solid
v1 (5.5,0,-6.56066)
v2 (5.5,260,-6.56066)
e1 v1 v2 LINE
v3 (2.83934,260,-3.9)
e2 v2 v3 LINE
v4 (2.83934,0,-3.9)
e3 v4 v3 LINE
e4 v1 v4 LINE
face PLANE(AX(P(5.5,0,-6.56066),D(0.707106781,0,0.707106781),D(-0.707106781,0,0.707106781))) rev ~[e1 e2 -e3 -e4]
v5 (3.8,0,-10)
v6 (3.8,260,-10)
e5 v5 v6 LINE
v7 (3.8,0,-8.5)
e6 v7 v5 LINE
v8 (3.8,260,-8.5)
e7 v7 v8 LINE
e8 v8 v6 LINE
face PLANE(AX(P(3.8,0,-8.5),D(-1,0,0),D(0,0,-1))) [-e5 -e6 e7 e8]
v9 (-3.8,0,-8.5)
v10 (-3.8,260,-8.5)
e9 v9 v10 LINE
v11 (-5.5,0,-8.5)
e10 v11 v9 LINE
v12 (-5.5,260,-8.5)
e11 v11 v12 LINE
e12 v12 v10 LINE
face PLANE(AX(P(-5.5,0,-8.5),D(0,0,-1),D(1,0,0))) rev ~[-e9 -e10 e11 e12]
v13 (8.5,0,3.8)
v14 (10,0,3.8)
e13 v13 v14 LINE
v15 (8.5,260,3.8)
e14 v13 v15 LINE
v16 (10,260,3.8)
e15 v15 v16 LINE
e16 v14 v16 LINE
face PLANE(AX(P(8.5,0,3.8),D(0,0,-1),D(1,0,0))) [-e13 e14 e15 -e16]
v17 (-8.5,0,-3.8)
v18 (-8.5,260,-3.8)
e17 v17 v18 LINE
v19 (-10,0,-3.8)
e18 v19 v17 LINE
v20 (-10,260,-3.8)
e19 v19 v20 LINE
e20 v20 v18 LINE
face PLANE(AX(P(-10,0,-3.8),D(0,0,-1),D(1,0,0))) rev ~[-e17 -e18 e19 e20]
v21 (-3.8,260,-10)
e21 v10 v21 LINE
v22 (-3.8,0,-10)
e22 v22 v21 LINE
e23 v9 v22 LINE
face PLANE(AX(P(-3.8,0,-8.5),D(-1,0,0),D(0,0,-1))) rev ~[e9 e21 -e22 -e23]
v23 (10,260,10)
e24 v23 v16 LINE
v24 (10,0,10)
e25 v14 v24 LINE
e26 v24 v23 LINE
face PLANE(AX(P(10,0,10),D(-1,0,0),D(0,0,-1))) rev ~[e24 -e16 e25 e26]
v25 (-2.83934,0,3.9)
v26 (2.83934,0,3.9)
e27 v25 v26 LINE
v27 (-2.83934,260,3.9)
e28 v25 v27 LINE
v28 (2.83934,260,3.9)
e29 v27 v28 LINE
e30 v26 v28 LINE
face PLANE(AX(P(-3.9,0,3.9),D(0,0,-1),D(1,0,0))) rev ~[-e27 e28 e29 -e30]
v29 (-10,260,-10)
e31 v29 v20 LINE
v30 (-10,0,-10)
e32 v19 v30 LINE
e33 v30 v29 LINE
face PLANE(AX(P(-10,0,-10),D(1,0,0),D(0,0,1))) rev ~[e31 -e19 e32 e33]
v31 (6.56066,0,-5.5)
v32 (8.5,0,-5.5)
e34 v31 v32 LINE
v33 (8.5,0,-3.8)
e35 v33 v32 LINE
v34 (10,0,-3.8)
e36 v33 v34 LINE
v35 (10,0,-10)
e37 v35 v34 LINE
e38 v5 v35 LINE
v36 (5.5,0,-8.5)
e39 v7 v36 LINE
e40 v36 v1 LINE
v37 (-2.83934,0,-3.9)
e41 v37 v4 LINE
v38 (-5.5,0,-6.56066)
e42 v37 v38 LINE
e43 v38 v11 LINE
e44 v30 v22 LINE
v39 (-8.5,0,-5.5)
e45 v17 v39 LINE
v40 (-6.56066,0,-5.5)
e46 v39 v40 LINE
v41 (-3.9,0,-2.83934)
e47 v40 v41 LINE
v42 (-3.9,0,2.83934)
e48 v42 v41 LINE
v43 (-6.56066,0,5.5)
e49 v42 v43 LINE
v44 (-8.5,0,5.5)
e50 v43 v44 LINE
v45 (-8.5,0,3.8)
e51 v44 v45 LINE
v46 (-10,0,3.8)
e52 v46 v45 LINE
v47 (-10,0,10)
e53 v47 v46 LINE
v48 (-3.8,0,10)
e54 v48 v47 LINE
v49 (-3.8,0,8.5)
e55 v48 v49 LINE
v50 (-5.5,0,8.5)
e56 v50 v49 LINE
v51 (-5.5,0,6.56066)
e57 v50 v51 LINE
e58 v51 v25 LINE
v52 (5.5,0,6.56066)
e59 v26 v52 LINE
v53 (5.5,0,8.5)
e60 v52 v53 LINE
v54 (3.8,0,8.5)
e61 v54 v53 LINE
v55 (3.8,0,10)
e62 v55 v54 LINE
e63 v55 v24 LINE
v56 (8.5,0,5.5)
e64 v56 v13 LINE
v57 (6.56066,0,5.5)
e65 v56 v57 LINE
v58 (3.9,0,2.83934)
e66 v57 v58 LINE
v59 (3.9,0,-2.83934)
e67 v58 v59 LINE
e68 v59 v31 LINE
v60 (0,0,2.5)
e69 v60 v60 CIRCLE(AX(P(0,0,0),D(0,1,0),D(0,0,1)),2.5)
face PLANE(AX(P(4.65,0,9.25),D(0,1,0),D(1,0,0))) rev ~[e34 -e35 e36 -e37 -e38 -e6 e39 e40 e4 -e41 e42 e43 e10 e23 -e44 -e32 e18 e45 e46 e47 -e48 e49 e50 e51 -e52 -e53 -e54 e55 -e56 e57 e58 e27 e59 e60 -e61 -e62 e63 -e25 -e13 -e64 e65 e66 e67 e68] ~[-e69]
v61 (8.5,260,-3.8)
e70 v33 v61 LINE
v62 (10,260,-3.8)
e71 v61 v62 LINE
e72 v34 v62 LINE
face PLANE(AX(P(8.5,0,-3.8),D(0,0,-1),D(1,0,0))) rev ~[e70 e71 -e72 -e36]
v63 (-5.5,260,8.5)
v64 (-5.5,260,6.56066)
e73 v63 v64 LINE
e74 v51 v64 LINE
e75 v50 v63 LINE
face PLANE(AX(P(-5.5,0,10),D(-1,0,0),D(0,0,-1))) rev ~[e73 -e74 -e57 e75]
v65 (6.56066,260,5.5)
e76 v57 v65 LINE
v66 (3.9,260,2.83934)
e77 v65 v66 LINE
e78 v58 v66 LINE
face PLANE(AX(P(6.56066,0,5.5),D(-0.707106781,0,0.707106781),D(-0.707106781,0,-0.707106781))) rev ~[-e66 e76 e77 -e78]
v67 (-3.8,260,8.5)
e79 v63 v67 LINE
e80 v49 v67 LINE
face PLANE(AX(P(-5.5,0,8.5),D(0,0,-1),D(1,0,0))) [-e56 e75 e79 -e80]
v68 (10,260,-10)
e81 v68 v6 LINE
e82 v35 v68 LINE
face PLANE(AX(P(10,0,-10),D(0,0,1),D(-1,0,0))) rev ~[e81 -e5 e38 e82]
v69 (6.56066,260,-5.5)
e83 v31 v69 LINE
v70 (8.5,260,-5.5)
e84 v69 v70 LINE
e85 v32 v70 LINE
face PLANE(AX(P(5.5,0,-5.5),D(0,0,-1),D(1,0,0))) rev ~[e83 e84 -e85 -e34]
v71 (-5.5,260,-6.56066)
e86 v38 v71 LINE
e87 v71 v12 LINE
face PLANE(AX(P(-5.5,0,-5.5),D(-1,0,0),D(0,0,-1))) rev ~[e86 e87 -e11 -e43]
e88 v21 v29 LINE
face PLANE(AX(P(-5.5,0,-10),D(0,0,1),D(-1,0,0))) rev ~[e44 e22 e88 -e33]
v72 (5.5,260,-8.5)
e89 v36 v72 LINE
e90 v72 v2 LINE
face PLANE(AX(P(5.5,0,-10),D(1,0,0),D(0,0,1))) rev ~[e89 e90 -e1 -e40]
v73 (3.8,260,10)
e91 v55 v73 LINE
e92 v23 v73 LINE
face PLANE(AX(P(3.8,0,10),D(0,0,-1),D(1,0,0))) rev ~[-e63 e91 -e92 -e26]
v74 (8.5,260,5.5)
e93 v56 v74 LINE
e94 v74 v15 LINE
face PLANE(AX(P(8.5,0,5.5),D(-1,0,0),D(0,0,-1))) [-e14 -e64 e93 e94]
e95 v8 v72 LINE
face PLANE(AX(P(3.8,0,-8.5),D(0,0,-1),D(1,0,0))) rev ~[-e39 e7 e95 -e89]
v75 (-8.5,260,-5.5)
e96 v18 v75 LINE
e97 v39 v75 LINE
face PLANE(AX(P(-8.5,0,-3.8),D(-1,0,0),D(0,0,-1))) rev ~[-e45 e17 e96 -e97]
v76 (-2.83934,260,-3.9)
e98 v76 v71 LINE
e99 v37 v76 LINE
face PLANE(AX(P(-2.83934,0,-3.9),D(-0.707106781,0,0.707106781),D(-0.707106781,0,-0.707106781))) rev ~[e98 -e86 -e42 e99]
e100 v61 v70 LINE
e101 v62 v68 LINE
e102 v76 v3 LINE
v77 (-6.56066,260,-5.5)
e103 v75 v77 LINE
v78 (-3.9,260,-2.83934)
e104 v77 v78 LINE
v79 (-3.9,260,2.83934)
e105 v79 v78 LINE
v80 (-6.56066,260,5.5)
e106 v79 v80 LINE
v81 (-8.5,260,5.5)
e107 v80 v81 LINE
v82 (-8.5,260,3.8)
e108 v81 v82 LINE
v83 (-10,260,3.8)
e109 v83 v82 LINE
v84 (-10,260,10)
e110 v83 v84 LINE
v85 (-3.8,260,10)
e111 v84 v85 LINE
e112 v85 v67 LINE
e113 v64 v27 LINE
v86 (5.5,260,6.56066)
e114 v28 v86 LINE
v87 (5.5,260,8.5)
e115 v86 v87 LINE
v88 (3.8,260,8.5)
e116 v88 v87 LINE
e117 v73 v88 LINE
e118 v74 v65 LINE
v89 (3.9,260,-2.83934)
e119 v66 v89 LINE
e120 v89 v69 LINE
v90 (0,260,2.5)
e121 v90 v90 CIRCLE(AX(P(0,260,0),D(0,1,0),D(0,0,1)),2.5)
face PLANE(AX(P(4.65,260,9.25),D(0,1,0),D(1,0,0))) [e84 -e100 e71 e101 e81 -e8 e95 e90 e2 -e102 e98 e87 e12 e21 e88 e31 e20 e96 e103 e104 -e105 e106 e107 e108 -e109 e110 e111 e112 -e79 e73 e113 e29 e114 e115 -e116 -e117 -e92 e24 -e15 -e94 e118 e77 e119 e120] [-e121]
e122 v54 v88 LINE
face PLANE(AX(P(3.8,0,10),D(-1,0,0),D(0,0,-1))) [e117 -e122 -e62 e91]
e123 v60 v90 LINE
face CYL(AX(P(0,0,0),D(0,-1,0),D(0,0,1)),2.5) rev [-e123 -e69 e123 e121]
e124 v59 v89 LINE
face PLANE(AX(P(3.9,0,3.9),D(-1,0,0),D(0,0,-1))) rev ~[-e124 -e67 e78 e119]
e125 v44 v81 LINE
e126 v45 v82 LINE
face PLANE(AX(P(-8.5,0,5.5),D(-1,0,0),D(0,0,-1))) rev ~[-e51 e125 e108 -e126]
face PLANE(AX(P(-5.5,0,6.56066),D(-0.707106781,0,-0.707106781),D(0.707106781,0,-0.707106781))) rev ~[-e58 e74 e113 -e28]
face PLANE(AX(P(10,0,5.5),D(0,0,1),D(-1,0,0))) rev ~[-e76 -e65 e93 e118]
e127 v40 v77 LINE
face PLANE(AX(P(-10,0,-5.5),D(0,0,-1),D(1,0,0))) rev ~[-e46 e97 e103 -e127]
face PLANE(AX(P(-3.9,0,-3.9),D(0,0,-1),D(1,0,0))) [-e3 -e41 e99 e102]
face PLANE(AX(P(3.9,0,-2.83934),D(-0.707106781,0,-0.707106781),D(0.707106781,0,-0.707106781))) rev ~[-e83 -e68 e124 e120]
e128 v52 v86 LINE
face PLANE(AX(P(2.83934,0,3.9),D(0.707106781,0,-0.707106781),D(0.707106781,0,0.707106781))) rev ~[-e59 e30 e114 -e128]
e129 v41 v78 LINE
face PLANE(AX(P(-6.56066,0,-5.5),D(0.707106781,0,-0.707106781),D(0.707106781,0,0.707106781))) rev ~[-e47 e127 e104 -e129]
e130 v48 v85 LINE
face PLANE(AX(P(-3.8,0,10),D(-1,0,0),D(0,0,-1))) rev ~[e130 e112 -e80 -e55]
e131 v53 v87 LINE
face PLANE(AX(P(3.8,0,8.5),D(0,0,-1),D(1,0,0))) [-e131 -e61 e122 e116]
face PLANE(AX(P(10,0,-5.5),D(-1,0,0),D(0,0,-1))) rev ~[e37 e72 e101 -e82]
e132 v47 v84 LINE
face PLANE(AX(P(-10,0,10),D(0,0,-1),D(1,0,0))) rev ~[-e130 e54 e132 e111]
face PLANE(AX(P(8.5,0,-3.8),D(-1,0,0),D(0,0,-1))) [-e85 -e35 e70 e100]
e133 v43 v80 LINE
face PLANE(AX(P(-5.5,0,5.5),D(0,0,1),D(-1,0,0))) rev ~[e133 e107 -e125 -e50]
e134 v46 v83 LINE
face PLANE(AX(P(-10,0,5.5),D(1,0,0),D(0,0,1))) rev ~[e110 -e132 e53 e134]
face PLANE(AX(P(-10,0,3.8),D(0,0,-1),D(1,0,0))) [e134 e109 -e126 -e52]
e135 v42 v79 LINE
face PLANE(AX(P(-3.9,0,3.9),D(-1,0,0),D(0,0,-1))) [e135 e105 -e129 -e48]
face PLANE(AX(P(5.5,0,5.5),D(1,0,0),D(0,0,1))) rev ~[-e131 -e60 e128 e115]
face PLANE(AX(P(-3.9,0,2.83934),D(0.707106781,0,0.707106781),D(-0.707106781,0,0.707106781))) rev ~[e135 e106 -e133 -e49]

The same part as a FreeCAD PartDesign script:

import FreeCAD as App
import Part
import Sketcher

V = App.Vector

doc = App.newDocument("Part")
body = doc.addObject("PartDesign::Body", "Body")

# Sketch on XZ plane
sketch1 = body.newObject("Sketcher::SketchObject", "Sketch")
sketch1.AttachmentSupport = (doc.getObject("XZ_Plane"), [""])
sketch1.MapMode = "FlatFace"
sketch1.addGeometry([
    Part.LineSegment(V(6.6, -5.5, 0), V(8.5, -5.5, 0)),  # 0
    Part.LineSegment(V(8.5, -5.5, 0), V(8.5, -3.8, 0)),  # 1
    Part.LineSegment(V(8.5, -3.8, 0), V(10, -3.8, 0)),  # 2
    Part.LineSegment(V(10, -3.8, 0), V(10, -10, 0)),  # 3
    Part.LineSegment(V(10, -10, 0), V(3.8, -10, 0)),  # 4
    Part.LineSegment(V(3.8, -10, 0), V(3.8, -8.5, 0)),  # 5
    Part.LineSegment(V(3.8, -8.5, 0), V(5.5, -8.5, 0)),  # 6
    Part.LineSegment(V(5.5, -8.5, 0), V(5.5, -6.6, 0)),  # 7
    Part.LineSegment(V(5.5, -6.6, 0), V(2.8, -3.9, 0)),  # 8
    Part.LineSegment(V(2.8, -3.9, 0), V(-2.8, -3.9, 0)),  # 9
    Part.LineSegment(V(-2.8, -3.9, 0), V(-5.5, -6.6, 0)),  # 10
    Part.LineSegment(V(-5.5, -6.6, 0), V(-5.5, -8.5, 0)),  # 11
    Part.LineSegment(V(-5.5, -8.5, 0), V(-3.8, -8.5, 0)),  # 12
    Part.LineSegment(V(-3.8, -8.5, 0), V(-3.8, -10, 0)),  # 13
    Part.LineSegment(V(-3.8, -10, 0), V(-10, -10, 0)),  # 14
    Part.LineSegment(V(-10, -10, 0), V(-10, -3.8, 0)),  # 15
    Part.LineSegment(V(-10, -3.8, 0), V(-8.5, -3.8, 0)),  # 16
    Part.LineSegment(V(-8.5, -3.8, 0), V(-8.5, -5.5, 0)),  # 17
    Part.LineSegment(V(-8.5, -5.5, 0), V(-6.6, -5.5, 0)),  # 18
    Part.LineSegment(V(-6.6, -5.5, 0), V(-3.9, -2.8, 0)),  # 19
    Part.LineSegment(V(-3.9, -2.8, 0), V(-3.9, 2.8, 0)),  # 20
    Part.LineSegment(V(-3.9, 2.8, 0), V(-6.6, 5.5, 0)),  # 21
    Part.LineSegment(V(-6.6, 5.5, 0), V(-8.5, 5.5, 0)),  # 22
    Part.LineSegment(V(-8.5, 5.5, 0), V(-8.5, 3.8, 0)),  # 23
    Part.LineSegment(V(-8.5, 3.8, 0), V(-10, 3.8, 0)),  # 24
    Part.LineSegment(V(-10, 3.8, 0), V(-10, 10, 0)),  # 25
    Part.LineSegment(V(-10, 10, 0), V(-3.8, 10, 0)),  # 26
    Part.LineSegment(V(-3.8, 10, 0), V(-3.8, 8.5, 0)),  # 27
    Part.LineSegment(V(-3.8, 8.5, 0), V(-5.5, 8.5, 0)),  # 28
    Part.LineSegment(V(-5.5, 8.5, 0), V(-5.5, 6.6, 0)),  # 29
    Part.LineSegment(V(-5.5, 6.6, 0), V(-2.8, 3.9, 0)),  # 30
    Part.LineSegment(V(-2.8, 3.9, 0), V(2.8, 3.9, 0)),  # 31
    Part.LineSegment(V(2.8, 3.9, 0), V(5.5, 6.6, 0)),  # 32
    Part.LineSegment(V(5.5, 6.6, 0), V(5.5, 8.5, 0)),  # 33
    Part.LineSegment(V(5.5, 8.5, 0), V(3.8, 8.5, 0)),  # 34
    Part.LineSegment(V(3.8, 8.5, 0), V(3.8, 10, 0)),  # 35
    Part.LineSegment(V(3.8, 10, 0), V(10, 10, 0)),  # 36
    Part.LineSegment(V(10, 10, 0), V(10, 3.8, 0)),  # 37
    Part.LineSegment(V(10, 3.8, 0), V(8.5, 3.8, 0)),  # 38
    Part.LineSegment(V(8.5, 3.8, 0), V(8.5, 5.5, 0)),  # 39
    Part.LineSegment(V(8.5, 5.5, 0), V(6.6, 5.5, 0)),  # 40
    Part.LineSegment(V(6.6, 5.5, 0), V(3.9, 2.8, 0)),  # 41
    Part.LineSegment(V(3.9, 2.8, 0), V(3.9, -2.8, 0)),  # 42
    Part.LineSegment(V(3.9, -2.8, 0), V(6.6, -5.5, 0)),  # 43
    Part.Circle(V(0, 0, 0), V(0, 0, 1), 2.5),  # 44
], False)
sketch1.addConstraint([
    Sketcher.Constraint("Coincident", 0, 2, 1, 1),
    Sketcher.Constraint("Coincident", 1, 2, 2, 1),
    Sketcher.Constraint("Coincident", 2, 2, 3, 1),
    Sketcher.Constraint("Coincident", 3, 2, 4, 1),
    Sketcher.Constraint("Coincident", 4, 2, 5, 1),
    Sketcher.Constraint("Coincident", 5, 2, 6, 1),
    Sketcher.Constraint("Coincident", 6, 2, 7, 1),
    Sketcher.Constraint("Coincident", 7, 2, 8, 1),
    Sketcher.Constraint("Coincident", 8, 2, 9, 1),
    Sketcher.Constraint("Coincident", 9, 2, 10, 1),
    Sketcher.Constraint("Coincident", 10, 2, 11, 1),
    Sketcher.Constraint("Coincident", 11, 2, 12, 1),
    Sketcher.Constraint("Coincident", 12, 2, 13, 1),
    Sketcher.Constraint("Coincident", 13, 2, 14, 1),
    Sketcher.Constraint("Coincident", 14, 2, 15, 1),
    Sketcher.Constraint("Coincident", 15, 2, 16, 1),
    Sketcher.Constraint("Coincident", 16, 2, 17, 1),
    Sketcher.Constraint("Coincident", 17, 2, 18, 1),
    Sketcher.Constraint("Coincident", 18, 2, 19, 1),
    Sketcher.Constraint("Coincident", 19, 2, 20, 1),
    Sketcher.Constraint("Coincident", 20, 2, 21, 1),
    Sketcher.Constraint("Coincident", 21, 2, 22, 1),
    Sketcher.Constraint("Coincident", 22, 2, 23, 1),
    Sketcher.Constraint("Coincident", 23, 2, 24, 1),
    Sketcher.Constraint("Coincident", 24, 2, 25, 1),
    Sketcher.Constraint("Coincident", 25, 2, 26, 1),
    Sketcher.Constraint("Coincident", 26, 2, 27, 1),
    Sketcher.Constraint("Coincident", 27, 2, 28, 1),
    Sketcher.Constraint("Coincident", 28, 2, 29, 1),
    Sketcher.Constraint("Coincident", 29, 2, 30, 1),
    Sketcher.Constraint("Coincident", 30, 2, 31, 1),
    Sketcher.Constraint("Coincident", 31, 2, 32, 1),
    Sketcher.Constraint("Coincident", 32, 2, 33, 1),
    Sketcher.Constraint("Coincident", 33, 2, 34, 1),
    Sketcher.Constraint("Coincident", 34, 2, 35, 1),
    Sketcher.Constraint("Coincident", 35, 2, 36, 1),
    Sketcher.Constraint("Coincident", 36, 2, 37, 1),
    Sketcher.Constraint("Coincident", 37, 2, 38, 1),
    Sketcher.Constraint("Coincident", 38, 2, 39, 1),
    Sketcher.Constraint("Coincident", 39, 2, 40, 1),
    Sketcher.Constraint("Coincident", 40, 2, 41, 1),
    Sketcher.Constraint("Coincident", 41, 2, 42, 1),
    Sketcher.Constraint("Coincident", 42, 2, 43, 1),
    Sketcher.Constraint("Coincident", 43, 2, 0, 1),
    Sketcher.Constraint("Horizontal", 0),
    Sketcher.Constraint("Vertical", 1),
    Sketcher.Constraint("Horizontal", 2),
    Sketcher.Constraint("Vertical", 3),
    Sketcher.Constraint("Horizontal", 4),
    Sketcher.Constraint("Vertical", 5),
    Sketcher.Constraint("Horizontal", 6),
    Sketcher.Constraint("Vertical", 7),
    Sketcher.Constraint("Horizontal", 9),
    Sketcher.Constraint("Vertical", 11),
    Sketcher.Constraint("Horizontal", 12),
    Sketcher.Constraint("Vertical", 13),
    Sketcher.Constraint("Horizontal", 14),
    Sketcher.Constraint("Vertical", 15),
    Sketcher.Constraint("Horizontal", 16),
    Sketcher.Constraint("Vertical", 17),
    Sketcher.Constraint("Horizontal", 18),
    Sketcher.Constraint("Vertical", 20),
    Sketcher.Constraint("Horizontal", 22),
    Sketcher.Constraint("Vertical", 23),
    Sketcher.Constraint("Horizontal", 24),
    Sketcher.Constraint("Vertical", 25),
    Sketcher.Constraint("Horizontal", 26),
    Sketcher.Constraint("Vertical", 27),
    Sketcher.Constraint("Horizontal", 28),
    Sketcher.Constraint("Vertical", 29),
    Sketcher.Constraint("Horizontal", 31),
    Sketcher.Constraint("Vertical", 33),
    Sketcher.Constraint("Horizontal", 34),
    Sketcher.Constraint("Vertical", 35),
    Sketcher.Constraint("Horizontal", 36),
    Sketcher.Constraint("Vertical", 37),
    Sketcher.Constraint("Horizontal", 38),
    Sketcher.Constraint("Vertical", 39),
    Sketcher.Constraint("Horizontal", 40),
    Sketcher.Constraint("Vertical", 42),
    Sketcher.Constraint("Coincident", 44, 3, -1, 1),
    Sketcher.Constraint("Symmetric", 0, 2, 22, 2, -1, 1),
    Sketcher.Constraint("Symmetric", 2, 2, 24, 2, -1, 1),
    Sketcher.Constraint("Symmetric", 4, 2, 26, 2, -1, 1),
    Sketcher.Constraint("Symmetric", 6, 2, 28, 2, -1, 1),
    Sketcher.Constraint("Symmetric", 8, 2, 30, 2, -1, 1),
    Sketcher.Constraint("Symmetric", 10, 2, 32, 2, -1, 1),
    Sketcher.Constraint("Symmetric", 12, 2, 34, 2, -1, 1),
    Sketcher.Constraint("Symmetric", 14, 2, 36, 2, -1, 1),
    Sketcher.Constraint("Symmetric", 16, 2, 38, 2, -1, 1),
    Sketcher.Constraint("Symmetric", 18, 2, 40, 2, -1, 1),
    Sketcher.Constraint("Symmetric", 19, 2, 41, 2, -1, 1),
    Sketcher.Constraint("Symmetric", 7, 2, 10, 2, -2),
    Sketcher.Constraint("Symmetric", 5, 2, 12, 2, -2),
    Sketcher.Constraint("Symmetric", 3, 2, 14, 2, -2),
    Sketcher.Constraint("Symmetric", 1, 2, 16, 2, -2),
    Sketcher.Constraint("Symmetric", 21, 2, 40, 2, -2),
    Sketcher.Constraint("Perpendicular", 8, 10),
    Sketcher.Constraint("Parallel", 10, 19),
    Sketcher.Constraint("Perpendicular", 19, 21),
    Sketcher.Constraint("Parallel", 21, 30),
    Sketcher.Constraint("Perpendicular", 30, 32),
    Sketcher.Constraint("Perpendicular", 41, 43),
    Sketcher.Constraint("Horizontal", 20, 2, 41, 2),
    Sketcher.Constraint("Horizontal", 19, 2, 42, 2),
    Sketcher.Constraint("Equal", 34, 1),
    Sketcher.Constraint("Equal", 36, 3),
    Sketcher.Constraint("Equal", 38, 5),
    Sketcher.Constraint("Equal", 40, 7),
    Sketcher.Constraint("Equal", 31, 20),
    Sketcher.Constraint("Equal", 10, 19),
    Sketcher.Constraint("Diameter", 44, 5.0),
    Sketcher.Constraint("DistanceX", 2, 1, 2, 2, 1.5),
    Sketcher.Constraint("DistanceX", 4, 2, 4, 1, 6.2),
    Sketcher.Constraint("DistanceX", 6, 1, 6, 2, 1.7),
    Sketcher.Constraint("DistanceX", -1, 1, 2, 2, 10.0),
    Sketcher.Constraint("DistanceY", 8, 2, -1, 1, 3.9),
    Sketcher.Constraint("DistanceX", 0, 1, 0, 2, 1.93934),
])
pad1 = body.newObject("PartDesign::Pad", "Pad")
pad1.Profile = sketch1
pad1.Length = 260
pad1.Reversed = True

doc.recompute()
